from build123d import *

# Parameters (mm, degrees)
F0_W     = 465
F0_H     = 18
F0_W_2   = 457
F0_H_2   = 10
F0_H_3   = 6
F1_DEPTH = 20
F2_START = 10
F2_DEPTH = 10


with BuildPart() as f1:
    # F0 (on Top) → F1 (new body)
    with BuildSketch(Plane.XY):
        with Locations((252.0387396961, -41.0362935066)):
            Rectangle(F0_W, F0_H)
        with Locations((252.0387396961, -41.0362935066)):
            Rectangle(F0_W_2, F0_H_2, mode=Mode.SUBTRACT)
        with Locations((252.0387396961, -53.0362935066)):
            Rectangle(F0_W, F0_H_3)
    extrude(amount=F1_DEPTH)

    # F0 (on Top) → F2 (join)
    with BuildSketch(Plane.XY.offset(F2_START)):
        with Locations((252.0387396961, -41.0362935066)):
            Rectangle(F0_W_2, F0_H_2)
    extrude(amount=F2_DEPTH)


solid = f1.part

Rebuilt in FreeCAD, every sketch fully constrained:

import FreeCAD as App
import Part
import Sketcher

V = App.Vector


def add_polygon(sketch, points):
    """Adds a closed chain of lines whose ends are joined by coincident constraints."""
    first, n = sketch.GeometryCount, len(points)
    for a, b in zip(points, points[1:] + points[:1]):
        sketch.addGeometry(Part.LineSegment(App.Vector(*a, 0), App.Vector(*b, 0)), False)
    for i in range(n):
        sketch.addConstraint(Sketcher.Constraint("Coincident", first + i, 2, first + (i + 1) % n, 1))

doc = App.newDocument("Part")
body = doc.addObject("PartDesign::Body", "Body")

sketch1 = body.newObject("Sketcher::SketchObject", "Sketch")
sketch1.AttachmentSupport = (doc.getObject("XY_Plane"), [""])
sketch1.MapMode = "FlatFace"
add_polygon(sketch1, [(485, -32), (20, -32), (20, -56), (485, -56)])
add_polygon(sketch1, [(481, -46), (24, -46), (24, -36), (481, -36)])
sketch1.addConstraint(Sketcher.Constraint("Horizontal", 0))
sketch1.addConstraint(Sketcher.Constraint("Vertical", 1))
sketch1.addConstraint(Sketcher.Constraint("Horizontal", 2))
sketch1.addConstraint(Sketcher.Constraint("Vertical", 3))
sketch1.addConstraint(Sketcher.Constraint("Horizontal", 4))
sketch1.addConstraint(Sketcher.Constraint("Vertical", 5))
sketch1.addConstraint(Sketcher.Constraint("Horizontal", 6))
sketch1.addConstraint(Sketcher.Constraint("Vertical", 7))
sketch1.addConstraint(Sketcher.Constraint("DistanceX", 0, 2, 0, 1, 465.0))
sketch1.addConstraint(Sketcher.Constraint("DistanceX", 4, 2, 4, 1, 457.0))
sketch1.addConstraint(Sketcher.Constraint("DistanceY", 1, 2, 1, 1, 24.0))
sketch1.addConstraint(Sketcher.Constraint("DistanceY", 5, 1, 5, 2, 10.0))
sketch1.addConstraint(Sketcher.Constraint("DistanceX", 1, 2, 4, 2, 4.0))
sketch1.addConstraint(Sketcher.Constraint("DistanceY", 1, 2, 4, 2, 10.0))
sketch1.addConstraint(Sketcher.Constraint("DistanceX", -1, 1, 0, 2, 19.53874))
sketch1.addConstraint(Sketcher.Constraint("DistanceY", 0, 2, -1, 1, 32.036294))
pad1 = body.newObject("PartDesign::Pad", "Pad")
pad1.Profile = sketch1
pad1.Length = 20

sketch2 = body.newObject("Sketcher::SketchObject", "Sketch001")
sketch2.AttachmentSupport = (doc.getObject("XY_Plane"), [""])
sketch2.MapMode = "FlatFace"
sketch2.AttachmentOffset = App.Placement(V(0, 0, 10), App.Rotation())
add_polygon(sketch2, [(24, -36), (24, -46), (481, -46), (481, -36)])
sketch2.addConstraint(Sketcher.Constraint("Vertical", 0))
sketch2.addConstraint(Sketcher.Constraint("Horizontal", 1))
sketch2.addConstraint(Sketcher.Constraint("Vertical", 2))
sketch2.addConstraint(Sketcher.Constraint("Horizontal", 3))
sketch2.addConstraint(Sketcher.Constraint("DistanceX", 1, 1, 1, 2, 457.0))
sketch2.addConstraint(Sketcher.Constraint("DistanceY", 0, 2, 0, 1, 10.0))
sketch2.addConstraint(Sketcher.Constraint("DistanceX", -1, 1, 0, 2, 23.53874))
sketch2.addConstraint(Sketcher.Constraint("DistanceY", 0, 2, -1, 1, 46.036294))
pad2 = body.newObject("PartDesign::Pad", "Pad001")
pad2.Profile = sketch2
pad2.Length = 10

doc.recompute()
